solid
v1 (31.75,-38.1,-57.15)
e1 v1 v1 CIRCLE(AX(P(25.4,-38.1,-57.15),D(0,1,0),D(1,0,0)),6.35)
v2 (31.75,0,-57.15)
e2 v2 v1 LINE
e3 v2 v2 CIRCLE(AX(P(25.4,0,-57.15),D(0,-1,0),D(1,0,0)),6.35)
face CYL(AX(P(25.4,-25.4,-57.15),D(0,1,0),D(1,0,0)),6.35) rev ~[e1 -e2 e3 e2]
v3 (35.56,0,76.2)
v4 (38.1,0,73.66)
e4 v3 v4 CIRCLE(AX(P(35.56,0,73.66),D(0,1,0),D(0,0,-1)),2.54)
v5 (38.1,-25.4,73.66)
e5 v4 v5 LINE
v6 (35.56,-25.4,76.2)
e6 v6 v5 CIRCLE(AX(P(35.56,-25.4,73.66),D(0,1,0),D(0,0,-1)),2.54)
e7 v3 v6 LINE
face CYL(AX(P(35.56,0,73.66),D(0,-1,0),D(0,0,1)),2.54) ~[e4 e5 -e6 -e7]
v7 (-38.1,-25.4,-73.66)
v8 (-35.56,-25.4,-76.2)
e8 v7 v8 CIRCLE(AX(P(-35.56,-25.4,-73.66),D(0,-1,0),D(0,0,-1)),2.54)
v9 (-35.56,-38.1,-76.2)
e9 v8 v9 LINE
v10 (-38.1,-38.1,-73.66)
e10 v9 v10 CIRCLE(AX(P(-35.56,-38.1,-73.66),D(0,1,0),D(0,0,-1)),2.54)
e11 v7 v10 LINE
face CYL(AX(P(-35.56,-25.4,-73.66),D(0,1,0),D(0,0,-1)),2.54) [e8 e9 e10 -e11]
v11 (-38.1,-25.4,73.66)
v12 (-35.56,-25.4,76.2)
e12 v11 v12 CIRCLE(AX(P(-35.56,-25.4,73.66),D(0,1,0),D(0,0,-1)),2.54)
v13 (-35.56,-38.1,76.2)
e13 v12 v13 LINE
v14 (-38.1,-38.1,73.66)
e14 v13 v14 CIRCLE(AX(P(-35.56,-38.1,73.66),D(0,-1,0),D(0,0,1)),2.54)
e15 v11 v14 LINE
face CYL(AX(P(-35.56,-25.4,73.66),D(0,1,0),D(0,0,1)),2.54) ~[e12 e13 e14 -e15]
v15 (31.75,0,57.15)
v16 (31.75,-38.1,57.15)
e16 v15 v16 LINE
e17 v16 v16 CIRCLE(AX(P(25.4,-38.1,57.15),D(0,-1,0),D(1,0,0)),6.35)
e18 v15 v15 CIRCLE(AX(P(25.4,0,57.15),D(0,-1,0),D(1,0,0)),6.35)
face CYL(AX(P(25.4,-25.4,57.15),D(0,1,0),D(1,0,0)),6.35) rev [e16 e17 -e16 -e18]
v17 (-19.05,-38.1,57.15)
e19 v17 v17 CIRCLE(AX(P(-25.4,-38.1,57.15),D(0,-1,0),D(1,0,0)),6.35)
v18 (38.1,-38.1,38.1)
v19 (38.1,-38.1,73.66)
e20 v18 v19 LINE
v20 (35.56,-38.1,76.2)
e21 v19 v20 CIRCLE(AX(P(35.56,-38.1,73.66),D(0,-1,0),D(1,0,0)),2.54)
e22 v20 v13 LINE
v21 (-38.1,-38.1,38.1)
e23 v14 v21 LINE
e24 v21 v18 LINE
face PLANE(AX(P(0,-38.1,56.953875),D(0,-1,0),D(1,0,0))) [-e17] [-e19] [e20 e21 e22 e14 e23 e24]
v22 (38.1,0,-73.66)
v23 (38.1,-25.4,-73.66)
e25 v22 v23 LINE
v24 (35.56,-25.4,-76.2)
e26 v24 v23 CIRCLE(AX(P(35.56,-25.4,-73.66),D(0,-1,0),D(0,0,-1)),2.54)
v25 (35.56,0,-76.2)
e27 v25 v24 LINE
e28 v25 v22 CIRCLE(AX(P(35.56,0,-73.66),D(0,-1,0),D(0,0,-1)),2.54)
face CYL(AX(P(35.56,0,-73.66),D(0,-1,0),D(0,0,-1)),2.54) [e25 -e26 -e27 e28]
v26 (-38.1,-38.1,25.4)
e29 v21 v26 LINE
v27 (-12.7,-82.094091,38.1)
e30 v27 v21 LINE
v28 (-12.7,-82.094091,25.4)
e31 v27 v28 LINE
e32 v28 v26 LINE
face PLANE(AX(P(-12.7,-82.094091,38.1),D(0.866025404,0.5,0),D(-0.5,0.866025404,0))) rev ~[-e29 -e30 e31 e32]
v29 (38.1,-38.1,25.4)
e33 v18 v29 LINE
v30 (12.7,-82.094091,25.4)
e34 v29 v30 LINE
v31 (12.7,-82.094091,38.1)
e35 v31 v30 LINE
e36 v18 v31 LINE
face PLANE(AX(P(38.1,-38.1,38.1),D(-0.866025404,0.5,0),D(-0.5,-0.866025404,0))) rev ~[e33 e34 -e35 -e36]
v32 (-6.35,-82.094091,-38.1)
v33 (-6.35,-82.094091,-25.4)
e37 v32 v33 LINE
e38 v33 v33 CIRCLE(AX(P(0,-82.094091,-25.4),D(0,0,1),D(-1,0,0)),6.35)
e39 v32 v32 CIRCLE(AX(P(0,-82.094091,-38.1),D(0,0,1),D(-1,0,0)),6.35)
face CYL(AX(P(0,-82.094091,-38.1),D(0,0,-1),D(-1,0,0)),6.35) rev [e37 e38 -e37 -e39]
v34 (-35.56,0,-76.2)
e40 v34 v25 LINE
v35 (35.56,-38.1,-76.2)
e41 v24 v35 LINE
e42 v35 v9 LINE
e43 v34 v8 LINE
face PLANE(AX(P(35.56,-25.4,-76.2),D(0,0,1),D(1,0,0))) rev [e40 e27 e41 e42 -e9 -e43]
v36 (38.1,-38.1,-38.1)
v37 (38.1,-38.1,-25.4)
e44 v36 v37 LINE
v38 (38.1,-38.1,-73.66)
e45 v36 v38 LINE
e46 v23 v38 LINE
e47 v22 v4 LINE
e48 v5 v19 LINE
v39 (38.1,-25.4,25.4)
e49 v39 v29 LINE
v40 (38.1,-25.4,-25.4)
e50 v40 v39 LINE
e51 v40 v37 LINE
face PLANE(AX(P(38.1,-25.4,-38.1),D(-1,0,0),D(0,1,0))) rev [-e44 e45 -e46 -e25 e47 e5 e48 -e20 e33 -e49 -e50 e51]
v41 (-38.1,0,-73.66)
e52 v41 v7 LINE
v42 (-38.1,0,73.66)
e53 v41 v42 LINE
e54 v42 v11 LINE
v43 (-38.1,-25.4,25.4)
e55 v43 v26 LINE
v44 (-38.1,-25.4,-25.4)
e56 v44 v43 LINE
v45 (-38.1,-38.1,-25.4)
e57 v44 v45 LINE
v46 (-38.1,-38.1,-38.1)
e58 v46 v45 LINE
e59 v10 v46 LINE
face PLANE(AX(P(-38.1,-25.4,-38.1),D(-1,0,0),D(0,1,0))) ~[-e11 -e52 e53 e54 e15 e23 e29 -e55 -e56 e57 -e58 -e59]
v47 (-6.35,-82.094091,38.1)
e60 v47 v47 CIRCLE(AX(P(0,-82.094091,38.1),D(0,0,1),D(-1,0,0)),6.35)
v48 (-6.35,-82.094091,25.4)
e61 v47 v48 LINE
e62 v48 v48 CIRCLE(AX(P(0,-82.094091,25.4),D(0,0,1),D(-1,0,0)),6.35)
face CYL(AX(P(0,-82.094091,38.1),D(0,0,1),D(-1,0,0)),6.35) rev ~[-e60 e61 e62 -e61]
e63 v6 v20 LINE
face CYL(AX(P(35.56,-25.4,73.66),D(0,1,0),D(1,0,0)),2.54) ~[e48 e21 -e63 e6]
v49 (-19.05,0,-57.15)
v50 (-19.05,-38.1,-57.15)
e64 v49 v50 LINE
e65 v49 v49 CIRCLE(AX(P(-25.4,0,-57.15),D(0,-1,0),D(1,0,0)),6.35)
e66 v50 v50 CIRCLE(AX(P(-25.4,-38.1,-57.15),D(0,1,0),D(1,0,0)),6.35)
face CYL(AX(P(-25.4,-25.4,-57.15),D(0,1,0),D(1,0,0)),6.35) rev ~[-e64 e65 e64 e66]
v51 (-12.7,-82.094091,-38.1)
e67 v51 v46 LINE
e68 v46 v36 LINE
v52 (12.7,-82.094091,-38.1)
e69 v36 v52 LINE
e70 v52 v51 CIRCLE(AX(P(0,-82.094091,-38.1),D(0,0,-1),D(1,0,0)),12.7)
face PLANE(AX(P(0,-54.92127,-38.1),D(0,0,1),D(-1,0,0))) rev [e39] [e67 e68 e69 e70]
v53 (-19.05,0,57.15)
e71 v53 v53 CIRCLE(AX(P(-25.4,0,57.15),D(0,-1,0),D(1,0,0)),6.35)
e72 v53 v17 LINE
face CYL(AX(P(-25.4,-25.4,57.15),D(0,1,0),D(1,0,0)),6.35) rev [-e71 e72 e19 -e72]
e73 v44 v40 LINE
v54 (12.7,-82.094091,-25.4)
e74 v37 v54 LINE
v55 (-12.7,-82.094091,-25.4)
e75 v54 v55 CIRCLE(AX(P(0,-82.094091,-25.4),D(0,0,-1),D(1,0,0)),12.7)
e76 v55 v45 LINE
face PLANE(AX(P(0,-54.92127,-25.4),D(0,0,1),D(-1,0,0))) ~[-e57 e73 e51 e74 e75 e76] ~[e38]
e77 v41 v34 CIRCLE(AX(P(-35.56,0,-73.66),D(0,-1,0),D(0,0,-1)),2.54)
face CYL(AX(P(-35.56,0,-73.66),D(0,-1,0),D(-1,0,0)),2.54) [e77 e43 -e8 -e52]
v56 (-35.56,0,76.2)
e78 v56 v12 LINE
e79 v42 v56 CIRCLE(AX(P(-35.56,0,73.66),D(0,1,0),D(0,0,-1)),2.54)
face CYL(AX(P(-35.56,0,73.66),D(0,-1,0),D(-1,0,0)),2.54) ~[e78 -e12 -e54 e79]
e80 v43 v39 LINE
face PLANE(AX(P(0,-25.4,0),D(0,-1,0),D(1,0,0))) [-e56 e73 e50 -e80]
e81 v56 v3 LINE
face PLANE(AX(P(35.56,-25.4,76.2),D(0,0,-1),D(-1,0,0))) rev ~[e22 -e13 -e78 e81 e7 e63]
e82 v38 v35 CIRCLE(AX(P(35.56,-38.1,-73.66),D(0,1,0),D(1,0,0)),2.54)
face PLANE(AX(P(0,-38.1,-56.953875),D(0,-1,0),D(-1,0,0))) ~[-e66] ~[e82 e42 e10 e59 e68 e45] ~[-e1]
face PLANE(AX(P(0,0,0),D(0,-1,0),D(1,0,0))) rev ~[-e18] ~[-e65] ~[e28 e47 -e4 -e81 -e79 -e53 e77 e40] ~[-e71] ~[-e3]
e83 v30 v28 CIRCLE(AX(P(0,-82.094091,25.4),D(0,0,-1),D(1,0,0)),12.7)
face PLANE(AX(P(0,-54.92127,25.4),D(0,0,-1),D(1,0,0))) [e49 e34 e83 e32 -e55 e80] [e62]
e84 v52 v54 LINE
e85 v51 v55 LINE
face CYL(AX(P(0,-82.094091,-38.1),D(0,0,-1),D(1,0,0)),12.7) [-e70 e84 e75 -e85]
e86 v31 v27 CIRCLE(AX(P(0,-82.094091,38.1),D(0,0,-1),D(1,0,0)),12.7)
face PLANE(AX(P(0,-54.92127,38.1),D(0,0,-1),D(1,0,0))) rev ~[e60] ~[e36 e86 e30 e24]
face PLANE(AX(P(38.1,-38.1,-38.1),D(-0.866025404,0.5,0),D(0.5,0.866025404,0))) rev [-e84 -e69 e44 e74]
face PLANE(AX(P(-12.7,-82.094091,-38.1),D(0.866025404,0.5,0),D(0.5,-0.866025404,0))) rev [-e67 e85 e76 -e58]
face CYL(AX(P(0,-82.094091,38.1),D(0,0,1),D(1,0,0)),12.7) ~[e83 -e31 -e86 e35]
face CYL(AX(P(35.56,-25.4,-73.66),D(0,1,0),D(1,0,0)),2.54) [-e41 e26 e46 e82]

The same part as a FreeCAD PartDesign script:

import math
import FreeCAD as App
import Part
import Sketcher
Q = App.Units.Quantity


def edges_at(feature, points):
    """Names of the edges that pass closest to the given points."""
    edges = feature.Shape.Edges
    near = lambda p: min(range(len(edges)), key=lambda i: edges[i].distToShape(Part.Vertex(*p))[0])
    return sorted({f"Edge{near(p) + 1}" for p in points})

doc = App.newDocument("Part")
body = doc.addObject("PartDesign::Body", "Body")

sketch1 = body.newObject("Sketcher::SketchObject", "Sketch")
sketch1.AttachmentSupport = (doc.getObject("XZ_Plane"), [""])
sketch1.MapMode = "FlatFace"
sketch1.addGeometry(Part.LineSegment(App.Vector(-38, 76, 0), App.Vector(-38, -76, 0)), False)
sketch1.addGeometry(Part.LineSegment(App.Vector(-38, -76, 0), App.Vector(38, -76, 0)), False)
sketch1.addGeometry(Part.LineSegment(App.Vector(38, -76, 0), App.Vector(38, 76, 0)), False)
sketch1.addGeometry(Part.LineSegment(App.Vector(38, 76, 0), App.Vector(-38, 76, 0)), False)
sketch1.addGeometry(Part.Circle(App.Vector(-25, -57, 0), App.Vector(0, 0, 1), 6), False)
sketch1.addGeometry(Part.Circle(App.Vector(25, -57, 0), App.Vector(0, 0, 1), 6), False)
sketch1.addGeometry(Part.Circle(App.Vector(-25, 57, 0), App.Vector(0, 0, 1), 6), False)
sketch1.addGeometry(Part.Circle(App.Vector(25, 57, 0), App.Vector(0, 0, 1), 6), False)
sketch1.addConstraint(Sketcher.Constraint("Coincident", 0, 2, 1, 1))
sketch1.addConstraint(Sketcher.Constraint("Coincident", 1, 2, 2, 1))
sketch1.addConstraint(Sketcher.Constraint("Coincident", 2, 2, 3, 1))
sketch1.addConstraint(Sketcher.Constraint("Coincident", 3, 2, 0, 1))
sketch1.addConstraint(Sketcher.Constraint("Vertical", 0))
sketch1.addConstraint(Sketcher.Constraint("Horizontal", 1))
sketch1.addConstraint(Sketcher.Constraint("Vertical", 2))
sketch1.addConstraint(Sketcher.Constraint("Horizontal", 3))
sketch1.addConstraint(Sketcher.Constraint("Equal", 4, 5))
sketch1.addConstraint(Sketcher.Constraint("Equal", 5, 6))
sketch1.addConstraint(Sketcher.Constraint("Equal", 6, 7))
sketch1.addConstraint(Sketcher.Constraint("Symmetric", 5, 3, 6, 3, -1, 1))
sketch1.addConstraint(Sketcher.Constraint("Symmetric", 4, 3, 7, 3, -1, 1))
sketch1.addConstraint(Sketcher.Constraint("Symmetric", 0, 2, 2, 2, -1, 1))
sketch1.addConstraint(Sketcher.Constraint("Symmetric", 4, 3, 5, 3, -2))
sketch1.addConstraint(Sketcher.Constraint("Diameter", 4, Q("0.5 in")))
sketch1.addConstraint(Sketcher.Constraint("DistanceX", 1, 1, 1, 2, Q("3 in")))
sketch1.addConstraint(Sketcher.Constraint("DistanceY", 0, 2, 0, 1, Q("6 in")))
sketch1.addConstraint(Sketcher.Constraint("DistanceX", 4, 3, -1, 1, Q("1 in")))
sketch1.addConstraint(Sketcher.Constraint("DistanceY", 4, 3, 6, 3, Q("4.5 in")))
pad1 = body.newObject("PartDesign::Pad", "Pad")
pad1.Profile = sketch1
pad1.Length = Q("1 in")
doc.recompute()

fillet = body.newObject("PartDesign::Fillet", "Fillet")
fillet.Base = (pad1, edges_at(pad1, [
    (-38.1, -12.7, 76.2),
    (-38.1, -12.7, -76.2),
    (38.1, -12.7, -76.2),
    (38.1, -12.7, 76.2),
]))
fillet.Radius = Q("0.1 in")

sketch2 = body.newObject("Sketcher::SketchObject", "Sketch001")
sketch2.AttachmentSupport = (doc.getObject("XZ_Plane"), [""])
sketch2.MapMode = "FlatFace"
sketch2.AttachmentOffset = App.Placement(App.Vector(0, 0, 1 * 25.4), App.Rotation())
sketch2.addGeometry(Part.ArcOfCircle(Part.Circle(App.Vector(35.6, 73.7, 0), App.Vector(0, 0, 1), 2.5), math.radians(0), math.radians(90)), False)
sketch2.addGeometry(Part.LineSegment(App.Vector(35.6, 76.2, 0), App.Vector(-35.6, 76.2, 0)), False)
sketch2.addGeometry(Part.ArcOfCircle(Part.Circle(App.Vector(-35.6, 73.7, 0), App.Vector(0, 0, 1), 2.5), math.radians(90), math.radians(180)), False)
sketch2.addGeometry(Part.LineSegment(App.Vector(-38.1, 73.7, 0), App.Vector(-38.1, 38.1, 0)), False)
sketch2.addGeometry(Part.LineSegment(App.Vector(-38.1, 38.1, 0), App.Vector(38.1, 38.1, 0)), False)
sketch2.addGeometry(Part.LineSegment(App.Vector(38.1, 38.1, 0), App.Vector(38.1, 73.7, 0)), False)
sketch2.addGeometry(Part.Circle(App.Vector(-25.4, 57.1, 0), App.Vector(0, 0, 1), 6.3), False)
sketch2.addGeometry(Part.Circle(App.Vector(25.4, 57.1, 0), App.Vector(0, 0, 1), 6.3), False)
sketch2.addConstraint(Sketcher.Constraint("Tangent", 0, 2, 1, 1))
sketch2.addConstraint(Sketcher.Constraint("Tangent", 1, 2, 2, 1))
sketch2.addConstraint(Sketcher.Constraint("Tangent", 2, 2, 3, 1))
sketch2.addConstraint(Sketcher.Constraint("Coincident", 3, 2, 4, 1))
sketch2.addConstraint(Sketcher.Constraint("Coincident", 4, 2, 5, 1))
sketch2.addConstraint(Sketcher.Constraint("Tangent", 5, 2, 0, 1))
sketch2.addConstraint(Sketcher.Constraint("Horizontal", 1))
sketch2.addConstraint(Sketcher.Constraint("Vertical", 3))
sketch2.addConstraint(Sketcher.Constraint("Horizontal", 4))
sketch2.addConstraint(Sketcher.Constraint("Vertical", 5))
sketch2.addConstraint(Sketcher.Constraint("Equal", 0, 2))
sketch2.addConstraint(Sketcher.Constraint("Equal", 6, 7))
sketch2.addConstraint(Sketcher.Constraint("Symmetric", 6, 3, 7, 3, -2))
sketch2.addConstraint(Sketcher.Constraint("Diameter", 6, Q("0.5 in")))
sketch2.addConstraint(Sketcher.Constraint("Radius", 0, Q("0.1 in")))
sketch2.addConstraint(Sketcher.Constraint("DistanceX", 4, 1, 4, 2, Q("3 in")))
sketch2.addConstraint(Sketcher.Constraint("DistanceY", 3, 2, 3, 1, Q("1.4 in")))
sketch2.addConstraint(Sketcher.Constraint("DistanceX", 6, 3, -1, 1, Q("1 in")))
sketch2.addConstraint(Sketcher.Constraint("DistanceY", -1, 1, 0, 2, Q("3 in")))
sketch2.addConstraint(Sketcher.Constraint("DistanceX", -1, 1, 0, 3, Q("1.4 in")))
sketch2.addConstraint(Sketcher.Constraint("DistanceY", -1, 1, 6, 3, Q("2.25 in")))
pad2 = body.newObject("PartDesign::Pad", "Pad001")
pad2.Profile = sketch2
pad2.Length = Q("0.5 in")

sketch3 = body.newObject("Sketcher::SketchObject", "Sketch002")
sketch3.AttachmentSupport = (doc.getObject("XY_Plane"), [""])
sketch3.MapMode = "FlatFace"
sketch3.AttachmentOffset = App.Placement(App.Vector(0, 0, 1.5 * 25.4), App.Rotation())
sketch3.addGeometry(Part.LineSegment(App.Vector(-13, -82, 0), App.Vector(-38, -38, 0)), False)
sketch3.addGeometry(Part.LineSegment(App.Vector(-38, -38, 0), App.Vector(-38, -25, 0)), False)
sketch3.addGeometry(Part.LineSegment(App.Vector(-38, -25, 0), App.Vector(38, -25, 0)), False)
sketch3.addGeometry(Part.LineSegment(App.Vector(38, -25, 0), App.Vector(38, -38, 0)), False)
sketch3.addGeometry(Part.LineSegment(App.Vector(38, -38, 0), App.Vector(13, -82, 0)), False)
sketch3.addGeometry(Part.ArcOfCircle(Part.Circle(App.Vector(0, -82, 0), App.Vector(0, 0, 1), 13), math.radians(180), math.radians(360)), False)
sketch3.addGeometry(Part.Circle(App.Vector(0, -82, 0), App.Vector(0, 0, 1), 6), False)
sketch3.addConstraint(Sketcher.Constraint("Coincident", 0, 2, 1, 1))
sketch3.addConstraint(Sketcher.Constraint("Coincident", 1, 2, 2, 1))
sketch3.addConstraint(Sketcher.Constraint("Coincident", 2, 2, 3, 1))
sketch3.addConstraint(Sketcher.Constraint("Coincident", 3, 2, 4, 1))
sketch3.addConstraint(Sketcher.Constraint("Coincident", 4, 2, 5, 2))
sketch3.addConstraint(Sketcher.Constraint("Coincident", 5, 1, 0, 1))
sketch3.addConstraint(Sketcher.Constraint("Vertical", 1))
sketch3.addConstraint(Sketcher.Constraint("Horizontal", 2))
sketch3.addConstraint(Sketcher.Constraint("Vertical", 3))
sketch3.addConstraint(Sketcher.Constraint("Coincident", 6, 3, 5, 3))
sketch3.addConstraint(Sketcher.Constraint("Symmetric", 0, 2, 3, 2, -2))
sketch3.addConstraint(Sketcher.Constraint("Symmetric", 4, 2, 5, 1, -2))
sketch3.addConstraint(Sketcher.Constraint("Horizontal", 6, 3, 4, 2))
sketch3.addConstraint(Sketcher.Constraint("Diameter", 6, Q("0.5 in")))
sketch3.addConstraint(Sketcher.Constraint("Radius", 5, Q("0.5 in")))
sketch3.addConstraint(Sketcher.Constraint("DistanceX", 2, 1, 2, 2, Q("3 in")))
sketch3.addConstraint(Sketcher.Constraint("Distance", 0, Q("2 in")))
sketch3.addConstraint(Sketcher.Constraint("DistanceY", 1, 1, 1, 2, Q("0.5 in")))
sketch3.addConstraint(Sketcher.Constraint("DistanceY", 1, 2, -1, 1, Q("1 in")))
pad3 = body.newObject("PartDesign::Pad", "Pad002")
pad3.Profile = sketch3
pad3.Length = Q("0.5 in")
pad3.Reversed = True
body2 = doc.addObject("PartDesign::Body", "Body001")
doc.recompute()

body2.BaseFeature = body
doc.recompute()

mirroring = doc.addObject("Part::Mirroring", "Mirroring")
mirroring.Source = body
mirroring.Base = App.Vector(0, 0, 0)
mirroring.Normal = App.Vector(0, 0, 1)
body3 = doc.addObject("PartDesign::Body", "Body002")
body3.BaseFeature = mirroring
boolean = body2.newObject("PartDesign::Boolean", "Boolean")
boolean.Type = "Fuse"
boolean.addObjects([body3])
doc.recompute()
mirroring.Visibility = False

doc.recompute()
